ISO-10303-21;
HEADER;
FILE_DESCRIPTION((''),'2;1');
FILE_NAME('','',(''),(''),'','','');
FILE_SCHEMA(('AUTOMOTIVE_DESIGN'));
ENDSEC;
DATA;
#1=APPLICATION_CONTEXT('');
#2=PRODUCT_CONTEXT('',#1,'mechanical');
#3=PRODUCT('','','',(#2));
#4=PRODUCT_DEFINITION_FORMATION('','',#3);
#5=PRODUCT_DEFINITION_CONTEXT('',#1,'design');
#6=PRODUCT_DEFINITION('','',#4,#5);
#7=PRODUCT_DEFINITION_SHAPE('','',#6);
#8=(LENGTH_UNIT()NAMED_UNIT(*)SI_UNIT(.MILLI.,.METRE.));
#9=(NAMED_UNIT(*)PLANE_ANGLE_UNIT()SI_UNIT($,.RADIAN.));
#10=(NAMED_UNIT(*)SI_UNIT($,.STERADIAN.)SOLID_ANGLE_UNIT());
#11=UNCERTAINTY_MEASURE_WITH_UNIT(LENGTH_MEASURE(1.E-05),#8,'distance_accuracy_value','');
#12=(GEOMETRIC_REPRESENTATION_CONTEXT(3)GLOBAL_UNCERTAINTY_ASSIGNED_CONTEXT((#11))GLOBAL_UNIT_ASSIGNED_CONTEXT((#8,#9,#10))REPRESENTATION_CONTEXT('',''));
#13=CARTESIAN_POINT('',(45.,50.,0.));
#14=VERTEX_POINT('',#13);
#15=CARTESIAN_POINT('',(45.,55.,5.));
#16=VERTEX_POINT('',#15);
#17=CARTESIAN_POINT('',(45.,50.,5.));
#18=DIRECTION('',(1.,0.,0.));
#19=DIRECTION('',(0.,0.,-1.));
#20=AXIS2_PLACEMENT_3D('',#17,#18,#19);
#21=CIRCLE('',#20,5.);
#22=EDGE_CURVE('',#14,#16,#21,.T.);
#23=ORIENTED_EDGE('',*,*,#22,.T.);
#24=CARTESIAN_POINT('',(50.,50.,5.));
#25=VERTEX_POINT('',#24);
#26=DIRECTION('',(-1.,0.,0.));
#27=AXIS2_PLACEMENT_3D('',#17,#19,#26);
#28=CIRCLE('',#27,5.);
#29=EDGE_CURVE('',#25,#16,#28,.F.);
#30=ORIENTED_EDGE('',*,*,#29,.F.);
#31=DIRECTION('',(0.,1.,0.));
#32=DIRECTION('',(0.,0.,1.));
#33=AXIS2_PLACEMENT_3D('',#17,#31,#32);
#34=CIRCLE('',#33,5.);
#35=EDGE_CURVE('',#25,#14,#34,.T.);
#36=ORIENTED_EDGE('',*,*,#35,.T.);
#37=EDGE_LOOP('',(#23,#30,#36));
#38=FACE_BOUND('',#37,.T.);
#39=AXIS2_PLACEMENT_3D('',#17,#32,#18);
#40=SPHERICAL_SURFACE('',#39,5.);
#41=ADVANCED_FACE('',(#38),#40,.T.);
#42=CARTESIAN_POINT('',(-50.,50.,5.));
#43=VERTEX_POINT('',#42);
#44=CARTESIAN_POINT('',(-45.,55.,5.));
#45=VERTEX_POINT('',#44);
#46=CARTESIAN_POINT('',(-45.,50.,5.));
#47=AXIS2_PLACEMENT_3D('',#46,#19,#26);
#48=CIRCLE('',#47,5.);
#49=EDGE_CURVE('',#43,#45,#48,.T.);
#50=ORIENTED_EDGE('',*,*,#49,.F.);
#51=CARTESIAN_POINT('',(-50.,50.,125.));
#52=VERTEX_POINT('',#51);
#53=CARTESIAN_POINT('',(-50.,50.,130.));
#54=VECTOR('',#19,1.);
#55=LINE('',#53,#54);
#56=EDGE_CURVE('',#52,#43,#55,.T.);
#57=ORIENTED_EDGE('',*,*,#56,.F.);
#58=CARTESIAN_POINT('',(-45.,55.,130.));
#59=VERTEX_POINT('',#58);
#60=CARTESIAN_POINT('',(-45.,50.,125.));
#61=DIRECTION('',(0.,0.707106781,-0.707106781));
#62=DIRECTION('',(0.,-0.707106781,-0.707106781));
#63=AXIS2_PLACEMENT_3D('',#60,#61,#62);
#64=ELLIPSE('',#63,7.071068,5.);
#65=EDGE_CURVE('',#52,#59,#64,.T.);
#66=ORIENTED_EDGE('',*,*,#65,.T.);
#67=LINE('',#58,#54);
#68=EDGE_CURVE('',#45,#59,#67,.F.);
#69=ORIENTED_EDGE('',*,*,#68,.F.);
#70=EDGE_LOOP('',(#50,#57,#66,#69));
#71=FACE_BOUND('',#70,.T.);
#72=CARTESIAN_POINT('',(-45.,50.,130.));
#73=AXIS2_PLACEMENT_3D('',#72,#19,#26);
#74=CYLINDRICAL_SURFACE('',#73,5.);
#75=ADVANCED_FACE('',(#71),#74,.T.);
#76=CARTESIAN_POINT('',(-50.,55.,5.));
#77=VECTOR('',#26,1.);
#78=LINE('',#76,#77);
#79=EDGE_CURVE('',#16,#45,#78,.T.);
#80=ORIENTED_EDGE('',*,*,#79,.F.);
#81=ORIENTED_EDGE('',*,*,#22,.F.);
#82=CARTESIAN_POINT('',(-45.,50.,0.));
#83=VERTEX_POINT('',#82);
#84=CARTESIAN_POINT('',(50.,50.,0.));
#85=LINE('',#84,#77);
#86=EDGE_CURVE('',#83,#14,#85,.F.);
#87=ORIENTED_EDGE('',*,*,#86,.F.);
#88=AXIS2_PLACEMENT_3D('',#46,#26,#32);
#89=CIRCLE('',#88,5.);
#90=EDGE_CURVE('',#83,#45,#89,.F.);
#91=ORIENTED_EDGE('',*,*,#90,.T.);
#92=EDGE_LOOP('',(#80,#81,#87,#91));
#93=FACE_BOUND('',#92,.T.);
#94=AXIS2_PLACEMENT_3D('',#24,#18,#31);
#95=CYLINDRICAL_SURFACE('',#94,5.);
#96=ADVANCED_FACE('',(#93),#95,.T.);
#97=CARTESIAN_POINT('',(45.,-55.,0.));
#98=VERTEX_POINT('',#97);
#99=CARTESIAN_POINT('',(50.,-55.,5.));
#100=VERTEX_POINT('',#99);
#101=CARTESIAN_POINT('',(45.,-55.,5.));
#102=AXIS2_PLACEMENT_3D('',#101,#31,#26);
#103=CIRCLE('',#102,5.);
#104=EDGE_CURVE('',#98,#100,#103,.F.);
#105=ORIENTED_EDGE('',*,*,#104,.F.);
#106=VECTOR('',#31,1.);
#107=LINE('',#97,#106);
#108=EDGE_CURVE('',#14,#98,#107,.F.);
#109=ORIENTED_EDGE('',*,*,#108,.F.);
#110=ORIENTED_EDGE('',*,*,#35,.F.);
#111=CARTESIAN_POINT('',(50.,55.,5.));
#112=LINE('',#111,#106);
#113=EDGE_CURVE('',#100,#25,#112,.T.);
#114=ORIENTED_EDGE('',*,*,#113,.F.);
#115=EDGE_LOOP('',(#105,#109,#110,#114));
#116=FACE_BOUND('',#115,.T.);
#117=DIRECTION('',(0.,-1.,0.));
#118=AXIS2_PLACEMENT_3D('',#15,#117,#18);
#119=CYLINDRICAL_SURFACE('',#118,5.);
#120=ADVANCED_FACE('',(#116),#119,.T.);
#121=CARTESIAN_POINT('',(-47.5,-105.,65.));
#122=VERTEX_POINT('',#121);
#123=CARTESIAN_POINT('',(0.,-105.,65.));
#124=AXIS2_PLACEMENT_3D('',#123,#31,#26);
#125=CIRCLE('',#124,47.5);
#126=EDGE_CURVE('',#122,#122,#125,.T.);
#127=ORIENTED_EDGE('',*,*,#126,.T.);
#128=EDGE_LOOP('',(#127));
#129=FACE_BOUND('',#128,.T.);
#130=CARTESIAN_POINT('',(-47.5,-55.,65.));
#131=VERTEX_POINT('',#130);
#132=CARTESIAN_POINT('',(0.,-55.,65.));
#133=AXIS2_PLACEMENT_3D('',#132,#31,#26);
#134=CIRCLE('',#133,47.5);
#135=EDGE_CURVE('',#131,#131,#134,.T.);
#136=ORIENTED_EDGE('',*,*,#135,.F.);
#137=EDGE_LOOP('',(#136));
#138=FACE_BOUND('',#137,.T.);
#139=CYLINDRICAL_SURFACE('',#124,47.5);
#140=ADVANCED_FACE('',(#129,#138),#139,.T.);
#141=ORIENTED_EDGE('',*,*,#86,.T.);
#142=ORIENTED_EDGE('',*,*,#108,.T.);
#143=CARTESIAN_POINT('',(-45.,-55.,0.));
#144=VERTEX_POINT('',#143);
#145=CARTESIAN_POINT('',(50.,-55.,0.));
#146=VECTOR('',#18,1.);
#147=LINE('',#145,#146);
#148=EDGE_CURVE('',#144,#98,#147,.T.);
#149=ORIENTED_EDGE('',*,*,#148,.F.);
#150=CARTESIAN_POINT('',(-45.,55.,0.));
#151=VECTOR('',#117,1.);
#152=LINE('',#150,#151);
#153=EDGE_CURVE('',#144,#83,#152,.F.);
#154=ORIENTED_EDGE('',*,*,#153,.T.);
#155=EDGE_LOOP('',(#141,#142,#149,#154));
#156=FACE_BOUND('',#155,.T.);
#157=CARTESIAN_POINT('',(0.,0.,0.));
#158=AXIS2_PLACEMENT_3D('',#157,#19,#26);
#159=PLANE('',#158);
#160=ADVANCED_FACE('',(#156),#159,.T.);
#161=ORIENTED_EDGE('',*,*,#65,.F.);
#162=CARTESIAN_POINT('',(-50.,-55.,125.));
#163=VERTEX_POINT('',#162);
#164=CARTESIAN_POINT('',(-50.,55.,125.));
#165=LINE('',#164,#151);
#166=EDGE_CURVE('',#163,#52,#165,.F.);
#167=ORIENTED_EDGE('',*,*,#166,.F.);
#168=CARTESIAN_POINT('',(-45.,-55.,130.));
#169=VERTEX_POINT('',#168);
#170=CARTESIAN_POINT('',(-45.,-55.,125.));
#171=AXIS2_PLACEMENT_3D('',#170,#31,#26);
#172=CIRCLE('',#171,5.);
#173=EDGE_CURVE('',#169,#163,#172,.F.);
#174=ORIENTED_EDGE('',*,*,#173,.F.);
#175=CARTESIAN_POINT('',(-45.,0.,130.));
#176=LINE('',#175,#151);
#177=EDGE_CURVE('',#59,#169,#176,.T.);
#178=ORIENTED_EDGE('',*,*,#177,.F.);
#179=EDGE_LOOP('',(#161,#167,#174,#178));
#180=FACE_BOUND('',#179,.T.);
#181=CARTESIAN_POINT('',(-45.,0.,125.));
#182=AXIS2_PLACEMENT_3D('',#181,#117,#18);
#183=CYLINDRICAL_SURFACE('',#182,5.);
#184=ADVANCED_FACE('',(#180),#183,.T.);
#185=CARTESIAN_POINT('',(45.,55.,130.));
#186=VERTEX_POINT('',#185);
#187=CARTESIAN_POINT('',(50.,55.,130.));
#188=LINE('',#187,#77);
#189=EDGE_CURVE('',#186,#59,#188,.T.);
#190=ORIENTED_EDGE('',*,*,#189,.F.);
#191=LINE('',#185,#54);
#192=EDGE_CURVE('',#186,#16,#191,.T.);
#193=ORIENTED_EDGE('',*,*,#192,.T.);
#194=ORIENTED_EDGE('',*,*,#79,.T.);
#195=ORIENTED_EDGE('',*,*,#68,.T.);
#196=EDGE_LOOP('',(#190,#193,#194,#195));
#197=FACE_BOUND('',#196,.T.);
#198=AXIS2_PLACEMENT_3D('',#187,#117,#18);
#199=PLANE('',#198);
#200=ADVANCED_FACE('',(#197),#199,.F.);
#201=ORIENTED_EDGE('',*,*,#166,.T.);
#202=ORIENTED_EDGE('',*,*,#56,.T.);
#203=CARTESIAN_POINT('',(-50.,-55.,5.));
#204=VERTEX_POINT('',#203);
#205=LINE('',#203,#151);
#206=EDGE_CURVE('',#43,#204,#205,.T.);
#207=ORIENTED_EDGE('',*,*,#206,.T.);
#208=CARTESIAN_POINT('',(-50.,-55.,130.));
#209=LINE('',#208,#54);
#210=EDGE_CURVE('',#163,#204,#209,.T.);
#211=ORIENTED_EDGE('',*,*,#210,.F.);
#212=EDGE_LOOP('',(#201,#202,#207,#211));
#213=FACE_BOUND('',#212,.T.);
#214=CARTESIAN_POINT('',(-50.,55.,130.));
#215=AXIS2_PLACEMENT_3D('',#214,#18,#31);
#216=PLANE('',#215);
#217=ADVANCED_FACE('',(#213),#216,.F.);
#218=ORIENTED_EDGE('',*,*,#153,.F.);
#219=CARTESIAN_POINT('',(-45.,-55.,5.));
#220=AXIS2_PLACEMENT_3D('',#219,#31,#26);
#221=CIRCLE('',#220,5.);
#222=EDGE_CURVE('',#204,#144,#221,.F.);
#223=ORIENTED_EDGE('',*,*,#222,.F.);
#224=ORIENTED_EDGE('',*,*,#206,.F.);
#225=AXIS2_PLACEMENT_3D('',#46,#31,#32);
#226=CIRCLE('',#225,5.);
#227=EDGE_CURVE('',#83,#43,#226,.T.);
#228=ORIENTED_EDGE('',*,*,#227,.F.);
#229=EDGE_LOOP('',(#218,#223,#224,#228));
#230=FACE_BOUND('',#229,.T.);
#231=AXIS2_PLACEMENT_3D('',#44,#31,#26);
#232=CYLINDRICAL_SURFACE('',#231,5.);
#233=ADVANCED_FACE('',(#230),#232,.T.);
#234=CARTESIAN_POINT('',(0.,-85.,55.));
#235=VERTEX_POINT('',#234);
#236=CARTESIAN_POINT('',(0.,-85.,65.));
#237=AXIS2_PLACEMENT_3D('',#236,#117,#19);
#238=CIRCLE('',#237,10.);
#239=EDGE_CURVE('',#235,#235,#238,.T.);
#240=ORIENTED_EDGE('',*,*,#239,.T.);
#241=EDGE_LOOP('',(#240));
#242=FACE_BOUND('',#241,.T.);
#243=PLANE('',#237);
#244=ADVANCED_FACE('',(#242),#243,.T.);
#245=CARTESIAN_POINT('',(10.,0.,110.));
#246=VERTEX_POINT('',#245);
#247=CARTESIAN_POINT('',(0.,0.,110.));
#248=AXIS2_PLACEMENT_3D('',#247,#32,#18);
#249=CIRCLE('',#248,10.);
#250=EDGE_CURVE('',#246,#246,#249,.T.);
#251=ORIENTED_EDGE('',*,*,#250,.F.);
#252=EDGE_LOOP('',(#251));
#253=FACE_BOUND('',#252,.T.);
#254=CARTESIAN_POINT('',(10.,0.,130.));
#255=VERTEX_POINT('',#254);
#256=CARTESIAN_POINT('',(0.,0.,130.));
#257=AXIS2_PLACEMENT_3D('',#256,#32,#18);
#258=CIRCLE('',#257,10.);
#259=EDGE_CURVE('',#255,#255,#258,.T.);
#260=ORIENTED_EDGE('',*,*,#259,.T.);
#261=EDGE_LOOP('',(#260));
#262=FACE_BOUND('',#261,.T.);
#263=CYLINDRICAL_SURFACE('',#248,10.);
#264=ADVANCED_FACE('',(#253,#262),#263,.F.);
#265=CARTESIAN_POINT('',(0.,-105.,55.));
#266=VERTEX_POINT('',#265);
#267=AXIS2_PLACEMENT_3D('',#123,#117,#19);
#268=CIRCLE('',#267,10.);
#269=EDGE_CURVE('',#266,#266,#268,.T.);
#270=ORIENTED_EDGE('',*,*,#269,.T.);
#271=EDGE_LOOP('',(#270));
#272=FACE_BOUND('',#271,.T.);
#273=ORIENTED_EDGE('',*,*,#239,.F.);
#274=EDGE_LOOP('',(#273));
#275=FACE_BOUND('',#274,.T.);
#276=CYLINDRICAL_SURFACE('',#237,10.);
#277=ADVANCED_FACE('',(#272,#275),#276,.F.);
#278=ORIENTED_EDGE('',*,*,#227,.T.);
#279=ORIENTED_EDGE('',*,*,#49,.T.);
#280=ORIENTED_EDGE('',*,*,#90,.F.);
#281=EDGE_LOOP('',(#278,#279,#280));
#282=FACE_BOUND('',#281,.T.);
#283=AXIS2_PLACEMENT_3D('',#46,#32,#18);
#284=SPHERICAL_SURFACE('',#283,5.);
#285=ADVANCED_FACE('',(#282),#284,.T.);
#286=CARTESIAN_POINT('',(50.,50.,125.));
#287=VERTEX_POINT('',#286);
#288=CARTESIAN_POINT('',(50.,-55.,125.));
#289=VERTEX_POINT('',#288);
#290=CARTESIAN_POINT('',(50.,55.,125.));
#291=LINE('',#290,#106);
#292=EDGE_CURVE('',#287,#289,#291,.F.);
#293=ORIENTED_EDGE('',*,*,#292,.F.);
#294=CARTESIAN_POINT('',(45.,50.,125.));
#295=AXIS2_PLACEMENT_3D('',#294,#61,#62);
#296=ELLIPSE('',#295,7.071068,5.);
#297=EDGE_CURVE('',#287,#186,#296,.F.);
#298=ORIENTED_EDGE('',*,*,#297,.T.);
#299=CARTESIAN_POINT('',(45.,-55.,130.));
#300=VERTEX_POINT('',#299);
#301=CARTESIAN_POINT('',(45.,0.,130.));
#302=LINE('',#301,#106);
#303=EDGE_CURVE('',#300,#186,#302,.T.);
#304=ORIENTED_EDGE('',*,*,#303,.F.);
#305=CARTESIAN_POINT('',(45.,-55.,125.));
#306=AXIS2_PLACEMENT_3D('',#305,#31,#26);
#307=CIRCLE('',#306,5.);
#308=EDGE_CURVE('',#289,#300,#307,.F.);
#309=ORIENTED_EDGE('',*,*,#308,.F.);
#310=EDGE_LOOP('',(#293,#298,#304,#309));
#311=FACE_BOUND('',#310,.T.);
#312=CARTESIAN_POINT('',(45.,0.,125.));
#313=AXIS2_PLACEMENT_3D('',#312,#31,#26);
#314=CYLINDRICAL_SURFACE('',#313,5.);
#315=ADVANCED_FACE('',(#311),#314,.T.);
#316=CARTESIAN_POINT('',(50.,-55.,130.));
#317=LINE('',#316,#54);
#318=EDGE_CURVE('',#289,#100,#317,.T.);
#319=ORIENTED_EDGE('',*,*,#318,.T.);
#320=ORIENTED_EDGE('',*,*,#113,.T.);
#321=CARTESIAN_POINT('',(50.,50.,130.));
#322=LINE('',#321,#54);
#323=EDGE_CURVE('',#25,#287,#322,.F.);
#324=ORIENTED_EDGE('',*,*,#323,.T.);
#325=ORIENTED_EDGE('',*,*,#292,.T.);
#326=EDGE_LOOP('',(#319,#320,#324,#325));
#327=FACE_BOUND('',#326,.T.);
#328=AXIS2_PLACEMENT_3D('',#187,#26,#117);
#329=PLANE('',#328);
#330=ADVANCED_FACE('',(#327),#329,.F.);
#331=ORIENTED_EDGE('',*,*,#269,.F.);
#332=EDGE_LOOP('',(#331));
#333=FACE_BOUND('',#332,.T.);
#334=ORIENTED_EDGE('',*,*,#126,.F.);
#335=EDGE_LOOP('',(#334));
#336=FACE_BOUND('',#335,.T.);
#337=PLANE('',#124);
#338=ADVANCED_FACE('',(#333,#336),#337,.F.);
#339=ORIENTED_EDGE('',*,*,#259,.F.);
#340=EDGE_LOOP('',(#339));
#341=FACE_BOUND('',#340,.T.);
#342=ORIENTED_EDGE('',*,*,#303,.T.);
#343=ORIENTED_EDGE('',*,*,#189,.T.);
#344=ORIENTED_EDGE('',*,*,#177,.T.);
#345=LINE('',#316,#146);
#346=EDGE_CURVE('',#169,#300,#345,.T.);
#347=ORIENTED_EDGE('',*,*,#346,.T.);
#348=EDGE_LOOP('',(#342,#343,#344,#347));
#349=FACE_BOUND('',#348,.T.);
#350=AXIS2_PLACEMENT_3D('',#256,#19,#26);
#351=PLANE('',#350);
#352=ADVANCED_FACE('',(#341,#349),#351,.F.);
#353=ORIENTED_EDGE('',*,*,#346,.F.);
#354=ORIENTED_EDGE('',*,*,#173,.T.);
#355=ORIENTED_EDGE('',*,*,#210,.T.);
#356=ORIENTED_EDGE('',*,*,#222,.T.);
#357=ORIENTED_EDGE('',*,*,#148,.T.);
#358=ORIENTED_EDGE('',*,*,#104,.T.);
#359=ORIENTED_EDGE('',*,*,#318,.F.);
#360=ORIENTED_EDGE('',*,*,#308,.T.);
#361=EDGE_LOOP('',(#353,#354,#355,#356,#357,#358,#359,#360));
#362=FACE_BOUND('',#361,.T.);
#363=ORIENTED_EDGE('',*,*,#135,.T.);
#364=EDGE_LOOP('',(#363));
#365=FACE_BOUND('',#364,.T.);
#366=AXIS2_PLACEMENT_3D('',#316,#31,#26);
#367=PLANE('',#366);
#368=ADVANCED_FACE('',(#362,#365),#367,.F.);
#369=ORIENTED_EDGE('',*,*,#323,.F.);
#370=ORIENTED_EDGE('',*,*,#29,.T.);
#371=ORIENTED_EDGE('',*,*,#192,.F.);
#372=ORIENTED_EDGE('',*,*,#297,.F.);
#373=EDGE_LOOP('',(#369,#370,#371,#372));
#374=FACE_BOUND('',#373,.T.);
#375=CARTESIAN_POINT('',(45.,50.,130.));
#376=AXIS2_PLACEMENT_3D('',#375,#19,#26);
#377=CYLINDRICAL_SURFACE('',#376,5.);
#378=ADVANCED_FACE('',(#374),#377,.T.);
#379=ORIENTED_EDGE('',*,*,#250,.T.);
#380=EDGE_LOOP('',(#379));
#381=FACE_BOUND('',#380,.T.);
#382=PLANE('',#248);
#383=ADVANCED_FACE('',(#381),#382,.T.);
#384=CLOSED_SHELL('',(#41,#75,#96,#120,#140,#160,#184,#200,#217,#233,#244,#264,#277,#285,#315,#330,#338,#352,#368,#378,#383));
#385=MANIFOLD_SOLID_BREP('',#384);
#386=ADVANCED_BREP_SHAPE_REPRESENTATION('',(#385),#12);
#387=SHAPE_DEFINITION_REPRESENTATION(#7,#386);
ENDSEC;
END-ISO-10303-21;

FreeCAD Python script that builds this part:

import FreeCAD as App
import Part
import Sketcher


def edges_at(feature, points):
    """Names of the edges that pass closest to the given points."""
    edges = feature.Shape.Edges
    near = lambda p: min(range(len(edges)), key=lambda i: edges[i].distToShape(Part.Vertex(*p))[0])
    return sorted({f"Edge{near(p) + 1}" for p in points})

doc = App.newDocument("Part")
body = doc.addObject("PartDesign::Body", "Body")

# Sketch on XY plane
sketch1 = body.newObject("Sketcher::SketchObject", "Sketch")
sketch1.AttachmentSupport = (doc.getObject("XY_Plane"), [""])
sketch1.MapMode = "FlatFace"
sketch1.addGeometry(Part.LineSegment(App.Vector(-50, 55, 0), App.Vector(-50, -55, 0)), False)
sketch1.addGeometry(Part.LineSegment(App.Vector(-50, -55, 0), App.Vector(50, -55, 0)), False)
sketch1.addGeometry(Part.LineSegment(App.Vector(50, -55, 0), App.Vector(50, 55, 0)), False)
sketch1.addGeometry(Part.LineSegment(App.Vector(50, 55, 0), App.Vector(-50, 55, 0)), False)
sketch1.addConstraint(Sketcher.Constraint("Coincident", 0, 2, 1, 1))
sketch1.addConstraint(Sketcher.Constraint("Coincident", 1, 2, 2, 1))
sketch1.addConstraint(Sketcher.Constraint("Coincident", 2, 2, 3, 1))
sketch1.addConstraint(Sketcher.Constraint("Coincident", 3, 2, 0, 1))
sketch1.addConstraint(Sketcher.Constraint("Vertical", 0))
sketch1.addConstraint(Sketcher.Constraint("Horizontal", 1))
sketch1.addConstraint(Sketcher.Constraint("Vertical", 2))
sketch1.addConstraint(Sketcher.Constraint("Horizontal", 3))
sketch1.addConstraint(Sketcher.Constraint("Symmetric", 0, 2, 2, 2, -1, 1))
sketch1.addConstraint(Sketcher.Constraint("DistanceX", 1, 1, 1, 2, 100.0))
sketch1.addConstraint(Sketcher.Constraint("DistanceY", 0, 2, 0, 1, 110.0))
pad1 = body.newObject("PartDesign::Pad", "Pad")
pad1.Profile = sketch1
pad1.Length = 130

# Sketch on XZ plane
sketch2 = body.newObject("Sketcher::SketchObject", "Sketch001")
sketch2.AttachmentSupport = (doc.getObject("XZ_Plane"), [""])
sketch2.MapMode = "FlatFace"
sketch2.AttachmentOffset = App.Placement(App.Vector(0, 0, 55), App.Rotation())
sketch2.addGeometry(Part.Circle(App.Vector(0, 65, 0), App.Vector(0, 0, 1), 48), False)
sketch2.addConstraint(Sketcher.Constraint("PointOnObject", 0, 3, -2))
sketch2.addConstraint(Sketcher.Constraint("Diameter", 0, 95.0))
sketch2.addConstraint(Sketcher.Constraint("DistanceY", -1, 1, 0, 3, 65.0))
pad2 = body.newObject("PartDesign::Pad", "Pad001")
pad2.Profile = sketch2
pad2.Length = 50

# Sketch on XZ plane
sketch3 = body.newObject("Sketcher::SketchObject", "Sketch002")
sketch3.AttachmentSupport = (doc.getObject("XZ_Plane"), [""])
sketch3.MapMode = "FlatFace"
sketch3.AttachmentOffset = App.Placement(App.Vector(0, 0, 105), App.Rotation())
sketch3.addGeometry(Part.Circle(App.Vector(0, 65, 0), App.Vector(0, 0, 1), 10), False)
sketch3.addConstraint(Sketcher.Constraint("PointOnObject", 0, 3, -2))
sketch3.addConstraint(Sketcher.Constraint("Diameter", 0, 20.0))
sketch3.addConstraint(Sketcher.Constraint("DistanceY", -1, 1, 0, 3, 65.0))
pocket1 = body.newObject("PartDesign::Pocket", "Pocket")
pocket1.Profile = sketch3
pocket1.Length = 20

# Sketch on XY plane
sketch4 = body.newObject("Sketcher::SketchObject", "Sketch003")
sketch4.AttachmentSupport = (doc.getObject("XY_Plane"), [""])
sketch4.MapMode = "FlatFace"
sketch4.AttachmentOffset = App.Placement(App.Vector(0, 0, 130), App.Rotation())
sketch4.addGeometry(Part.Circle(App.Vector(0, 0, 0), App.Vector(0, 0, 1), 10), False)
sketch4.addConstraint(Sketcher.Constraint("Coincident", 0, 3, -1, 1))
sketch4.addConstraint(Sketcher.Constraint("Diameter", 0, 20.0))
pocket2 = body.newObject("PartDesign::Pocket", "Pocket001")
pocket2.Profile = sketch4
pocket2.Length = 20
doc.recompute()

fillet = body.newObject("PartDesign::Fillet", "Fillet")
fillet.Base = (pocket2, edges_at(pocket2, [
    (50, 0, 130),
    (-50, 0, 130),
    (0, 55, 0),
    (50, 0, 0),
    (-50, 0, 0),
    (-50, 55, 65),
    (50, 55, 65),
]))
fillet.Radius = 5

doc.recompute()
